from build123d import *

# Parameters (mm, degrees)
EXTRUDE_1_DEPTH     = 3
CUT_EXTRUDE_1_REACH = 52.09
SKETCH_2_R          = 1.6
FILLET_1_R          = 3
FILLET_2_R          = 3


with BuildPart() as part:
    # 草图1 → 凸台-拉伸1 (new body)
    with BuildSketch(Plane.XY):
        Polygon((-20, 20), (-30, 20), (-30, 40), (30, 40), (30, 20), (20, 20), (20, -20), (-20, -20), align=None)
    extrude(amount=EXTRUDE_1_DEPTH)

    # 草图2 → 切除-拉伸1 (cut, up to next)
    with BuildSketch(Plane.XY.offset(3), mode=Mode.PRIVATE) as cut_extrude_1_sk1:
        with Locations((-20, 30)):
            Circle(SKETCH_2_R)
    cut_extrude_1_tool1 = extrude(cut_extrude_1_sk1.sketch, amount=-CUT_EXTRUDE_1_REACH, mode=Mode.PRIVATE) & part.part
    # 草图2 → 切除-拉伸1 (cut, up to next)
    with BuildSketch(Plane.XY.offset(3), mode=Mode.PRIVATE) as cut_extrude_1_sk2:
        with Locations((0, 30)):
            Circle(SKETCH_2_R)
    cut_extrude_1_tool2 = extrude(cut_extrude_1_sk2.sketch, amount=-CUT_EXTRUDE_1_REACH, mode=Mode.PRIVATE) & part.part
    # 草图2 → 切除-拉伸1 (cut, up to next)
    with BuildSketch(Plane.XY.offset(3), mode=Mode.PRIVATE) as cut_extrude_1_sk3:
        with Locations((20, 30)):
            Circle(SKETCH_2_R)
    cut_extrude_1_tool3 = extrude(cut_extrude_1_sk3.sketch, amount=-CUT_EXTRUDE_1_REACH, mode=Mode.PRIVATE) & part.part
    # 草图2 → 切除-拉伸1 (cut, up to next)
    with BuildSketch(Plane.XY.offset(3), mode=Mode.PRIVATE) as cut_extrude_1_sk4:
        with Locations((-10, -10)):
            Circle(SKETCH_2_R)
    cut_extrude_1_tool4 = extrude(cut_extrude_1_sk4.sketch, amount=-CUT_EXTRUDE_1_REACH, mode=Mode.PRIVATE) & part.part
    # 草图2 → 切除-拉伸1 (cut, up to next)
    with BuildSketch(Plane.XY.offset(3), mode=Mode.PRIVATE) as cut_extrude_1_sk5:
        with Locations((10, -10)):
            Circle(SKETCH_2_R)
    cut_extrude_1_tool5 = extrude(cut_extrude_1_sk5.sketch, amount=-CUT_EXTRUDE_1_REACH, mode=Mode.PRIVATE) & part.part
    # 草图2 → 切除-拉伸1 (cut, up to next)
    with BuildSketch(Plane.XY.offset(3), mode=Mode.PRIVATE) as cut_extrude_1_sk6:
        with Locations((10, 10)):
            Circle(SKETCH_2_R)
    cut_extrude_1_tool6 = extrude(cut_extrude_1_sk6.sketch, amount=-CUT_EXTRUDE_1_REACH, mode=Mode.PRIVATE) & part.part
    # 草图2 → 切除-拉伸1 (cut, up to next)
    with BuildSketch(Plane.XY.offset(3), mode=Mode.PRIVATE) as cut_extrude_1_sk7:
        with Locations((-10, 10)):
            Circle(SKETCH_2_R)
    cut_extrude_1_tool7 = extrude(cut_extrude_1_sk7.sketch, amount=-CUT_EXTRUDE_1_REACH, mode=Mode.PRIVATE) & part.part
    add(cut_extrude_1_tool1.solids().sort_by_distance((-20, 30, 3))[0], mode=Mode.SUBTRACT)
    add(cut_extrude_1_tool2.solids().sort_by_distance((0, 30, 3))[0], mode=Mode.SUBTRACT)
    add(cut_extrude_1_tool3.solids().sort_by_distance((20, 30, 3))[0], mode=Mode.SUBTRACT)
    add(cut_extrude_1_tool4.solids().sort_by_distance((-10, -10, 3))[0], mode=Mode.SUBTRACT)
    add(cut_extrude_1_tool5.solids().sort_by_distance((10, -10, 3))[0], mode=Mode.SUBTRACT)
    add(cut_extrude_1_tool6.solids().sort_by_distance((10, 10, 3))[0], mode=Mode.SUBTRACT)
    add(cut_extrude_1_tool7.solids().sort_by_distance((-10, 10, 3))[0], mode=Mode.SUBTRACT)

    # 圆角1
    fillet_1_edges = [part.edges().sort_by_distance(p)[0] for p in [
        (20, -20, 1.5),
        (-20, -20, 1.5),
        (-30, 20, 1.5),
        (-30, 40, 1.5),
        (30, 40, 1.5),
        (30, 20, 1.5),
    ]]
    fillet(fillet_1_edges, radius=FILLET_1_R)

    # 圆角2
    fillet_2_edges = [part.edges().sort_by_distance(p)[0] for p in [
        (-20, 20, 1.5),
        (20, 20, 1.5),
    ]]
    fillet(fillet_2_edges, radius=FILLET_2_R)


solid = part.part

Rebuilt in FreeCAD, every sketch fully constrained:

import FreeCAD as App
import Part
import Sketcher
from FreeCAD import Vector


def edges_at(feature, points):
    """Names of the edges that pass closest to the given points."""
    edges = feature.Shape.Edges
    near = lambda p: min(range(len(edges)), key=lambda i: edges[i].distToShape(Part.Vertex(*p))[0])
    return sorted({f"Edge{near(p) + 1}" for p in points})


def add_polygon(sketch, points):
    """Adds a closed chain of lines whose ends are joined by coincident constraints."""
    first, n = sketch.GeometryCount, len(points)
    for a, b in zip(points, points[1:] + points[:1]):
        sketch.addGeometry(Part.LineSegment(App.Vector(*a, 0), App.Vector(*b, 0)), False)
    for i in range(n):
        sketch.addConstraint(Sketcher.Constraint("Coincident", first + i, 2, first + (i + 1) % n, 1))

doc = App.newDocument("Part")
body = doc.addObject("PartDesign::Body", "Body")

sketch1 = doc.addObject("Sketcher::SketchObject", "Sketch")
body.addObject(sketch1)
sketch1.AttachmentSupport = (doc.XY_Plane, [""])
sketch1.MapMode = "FlatFace"
add_polygon(sketch1, [(-30, 20), (-20, 20), (-20, -20), (20, -20), (20, 20), (30, 20), (30, 40), (-30, 40)])
sketch1.addConstraint([
    Sketcher.Constraint("Horizontal", 0),
    Sketcher.Constraint("Vertical", 1),
    Sketcher.Constraint("Horizontal", 2),
    Sketcher.Constraint("Vertical", 3),
    Sketcher.Constraint("Horizontal", 4),
    Sketcher.Constraint("Vertical", 5),
    Sketcher.Constraint("Horizontal", 6),
    Sketcher.Constraint("Vertical", 7),
    Sketcher.Constraint("Symmetric", 0, 2, 2, 2, -1, 1),
    Sketcher.Constraint("Symmetric", 4, 2, 7, 2, -2),
    Sketcher.Constraint("Equal", 2, 1),
    Sketcher.Constraint("DistanceX", 0, 1, 0, 2, 10.0),
    Sketcher.Constraint("DistanceX", 2, 1, 2, 2, 40.0),
    Sketcher.Constraint("DistanceY", 5, 1, 5, 2, 20.0),
])
pad1 = doc.addObject("PartDesign::Pad", "Pad")
body.addObject(pad1)
pad1.Profile = sketch1
pad1.Length = 3

sketch2 = doc.addObject("Sketcher::SketchObject", "Sketch001")
body.addObject(sketch2)
sketch2.AttachmentSupport = (doc.XY_Plane, [""])
sketch2.MapMode = "FlatFace"
sketch2.AttachmentOffset = App.Placement(Vector(0, 0, 3), App.Rotation())
sketch2.addGeometry(Part.Circle(Vector(-20, 30, 0), Vector(0, 0, 1), 1.6), False)
sketch2.addConstraint([
    Sketcher.Constraint("Diameter", 0, 3.2),
    Sketcher.Constraint("DistanceX", 0, 3, -1, 1, 20.0),
    Sketcher.Constraint("DistanceY", -1, 1, 0, 3, 30.0),
])
pocket1 = doc.addObject("PartDesign::Pocket", "Pocket")
body.addObject(pocket1)
pocket1.Profile = sketch2
pocket1.Type = "UpToFirst"

sketch3 = doc.addObject("Sketcher::SketchObject", "Sketch002")
body.addObject(sketch3)
sketch3.AttachmentSupport = (doc.XY_Plane, [""])
sketch3.MapMode = "FlatFace"
sketch3.AttachmentOffset = App.Placement(Vector(0, 0, 3), App.Rotation())
sketch3.addGeometry(Part.Circle(Vector(0, 30, 0), Vector(0, 0, 1), 1.6), False)
sketch3.addConstraint([
    Sketcher.Constraint("PointOnObject", 0, 3, -2),
    Sketcher.Constraint("Diameter", 0, 3.2),
    Sketcher.Constraint("DistanceY", -1, 1, 0, 3, 30.0),
])
pocket2 = doc.addObject("PartDesign::Pocket", "Pocket001")
body.addObject(pocket2)
pocket2.Profile = sketch3
pocket2.Type = "UpToFirst"

sketch4 = doc.addObject("Sketcher::SketchObject", "Sketch003")
body.addObject(sketch4)
sketch4.AttachmentSupport = (doc.XY_Plane, [""])
sketch4.MapMode = "FlatFace"
sketch4.AttachmentOffset = App.Placement(Vector(0, 0, 3), App.Rotation())
sketch4.addGeometry(Part.Circle(Vector(20, 30, 0), Vector(0, 0, 1), 1.6), False)
sketch4.addConstraint([
    Sketcher.Constraint("Diameter", 0, 3.2),
    Sketcher.Constraint("DistanceX", -1, 1, 0, 3, 20.0),
    Sketcher.Constraint("DistanceY", -1, 1, 0, 3, 30.0),
])
pocket3 = doc.addObject("PartDesign::Pocket", "Pocket002")
body.addObject(pocket3)
pocket3.Profile = sketch4
pocket3.Type = "UpToFirst"

sketch5 = doc.addObject("Sketcher::SketchObject", "Sketch004")
body.addObject(sketch5)
sketch5.AttachmentSupport = (doc.XY_Plane, [""])
sketch5.MapMode = "FlatFace"
sketch5.AttachmentOffset = App.Placement(Vector(0, 0, 3), App.Rotation())
sketch5.addGeometry(Part.Circle(Vector(-10, -10, 0), Vector(0, 0, 1), 1.6), False)
sketch5.addConstraint([
    Sketcher.Constraint("Diameter", 0, 3.2),
    Sketcher.Constraint("DistanceX", 0, 3, -1, 1, 10.0),
    Sketcher.Constraint("DistanceY", 0, 3, -1, 1, 10.0),
])
pocket4 = doc.addObject("PartDesign::Pocket", "Pocket003")
body.addObject(pocket4)
pocket4.Profile = sketch5
pocket4.Type = "UpToFirst"

sketch6 = doc.addObject("Sketcher::SketchObject", "Sketch005")
body.addObject(sketch6)
sketch6.AttachmentSupport = (doc.XY_Plane, [""])
sketch6.MapMode = "FlatFace"
sketch6.AttachmentOffset = App.Placement(Vector(0, 0, 3), App.Rotation())
sketch6.addGeometry(Part.Circle(Vector(10, -10, 0), Vector(0, 0, 1), 1.6), False)
sketch6.addConstraint([
    Sketcher.Constraint("Diameter", 0, 3.2),
    Sketcher.Constraint("DistanceX", -1, 1, 0, 3, 10.0),
    Sketcher.Constraint("DistanceY", 0, 3, -1, 1, 10.0),
])
pocket5 = doc.addObject("PartDesign::Pocket", "Pocket004")
body.addObject(pocket5)
pocket5.Profile = sketch6
pocket5.Type = "UpToFirst"

sketch7 = doc.addObject("Sketcher::SketchObject", "Sketch006")
body.addObject(sketch7)
sketch7.AttachmentSupport = (doc.XY_Plane, [""])
sketch7.MapMode = "FlatFace"
sketch7.AttachmentOffset = App.Placement(Vector(0, 0, 3), App.Rotation())
sketch7.addGeometry(Part.Circle(Vector(10, 10, 0), Vector(0, 0, 1), 1.6), False)
sketch7.addConstraint([
    Sketcher.Constraint("Diameter", 0, 3.2),
    Sketcher.Constraint("DistanceX", -1, 1, 0, 3, 10.0),
    Sketcher.Constraint("DistanceY", -1, 1, 0, 3, 10.0),
])
pocket6 = doc.addObject("PartDesign::Pocket", "Pocket005")
body.addObject(pocket6)
pocket6.Profile = sketch7
pocket6.Type = "UpToFirst"

sketch8 = doc.addObject("Sketcher::SketchObject", "Sketch007")
body.addObject(sketch8)
sketch8.AttachmentSupport = (doc.XY_Plane, [""])
sketch8.MapMode = "FlatFace"
sketch8.AttachmentOffset = App.Placement(Vector(0, 0, 3), App.Rotation())
sketch8.addGeometry(Part.Circle(Vector(-10, 10, 0), Vector(0, 0, 1), 1.6), False)
sketch8.addConstraint([
    Sketcher.Constraint("Diameter", 0, 3.2),
    Sketcher.Constraint("DistanceX", 0, 3, -1, 1, 10.0),
    Sketcher.Constraint("DistanceY", -1, 1, 0, 3, 10.0),
])
pocket7 = doc.addObject("PartDesign::Pocket", "Pocket006")
body.addObject(pocket7)
pocket7.Profile = sketch8
pocket7.Type = "UpToFirst"
doc.recompute()

fillet = doc.addObject("PartDesign::Fillet", "Fillet")
body.addObject(fillet)
fillet.Base = (pocket7, edges_at(pocket7, [
    (20, -20, 1.5),
    (-20, -20, 1.5),
    (-30, 20, 1.5),
    (-30, 40, 1.5),
    (30, 40, 1.5),
    (30, 20, 1.5),
]))
fillet.Radius = 3
doc.recompute()

fillet2 = doc.addObject("PartDesign::Fillet", "Fillet001")
body.addObject(fillet2)
fillet2.Base = (fillet, edges_at(fillet, [(-20, 20, 1.5), (20, 20, 1.5)]))
fillet2.Radius = 3

doc.recompute()
